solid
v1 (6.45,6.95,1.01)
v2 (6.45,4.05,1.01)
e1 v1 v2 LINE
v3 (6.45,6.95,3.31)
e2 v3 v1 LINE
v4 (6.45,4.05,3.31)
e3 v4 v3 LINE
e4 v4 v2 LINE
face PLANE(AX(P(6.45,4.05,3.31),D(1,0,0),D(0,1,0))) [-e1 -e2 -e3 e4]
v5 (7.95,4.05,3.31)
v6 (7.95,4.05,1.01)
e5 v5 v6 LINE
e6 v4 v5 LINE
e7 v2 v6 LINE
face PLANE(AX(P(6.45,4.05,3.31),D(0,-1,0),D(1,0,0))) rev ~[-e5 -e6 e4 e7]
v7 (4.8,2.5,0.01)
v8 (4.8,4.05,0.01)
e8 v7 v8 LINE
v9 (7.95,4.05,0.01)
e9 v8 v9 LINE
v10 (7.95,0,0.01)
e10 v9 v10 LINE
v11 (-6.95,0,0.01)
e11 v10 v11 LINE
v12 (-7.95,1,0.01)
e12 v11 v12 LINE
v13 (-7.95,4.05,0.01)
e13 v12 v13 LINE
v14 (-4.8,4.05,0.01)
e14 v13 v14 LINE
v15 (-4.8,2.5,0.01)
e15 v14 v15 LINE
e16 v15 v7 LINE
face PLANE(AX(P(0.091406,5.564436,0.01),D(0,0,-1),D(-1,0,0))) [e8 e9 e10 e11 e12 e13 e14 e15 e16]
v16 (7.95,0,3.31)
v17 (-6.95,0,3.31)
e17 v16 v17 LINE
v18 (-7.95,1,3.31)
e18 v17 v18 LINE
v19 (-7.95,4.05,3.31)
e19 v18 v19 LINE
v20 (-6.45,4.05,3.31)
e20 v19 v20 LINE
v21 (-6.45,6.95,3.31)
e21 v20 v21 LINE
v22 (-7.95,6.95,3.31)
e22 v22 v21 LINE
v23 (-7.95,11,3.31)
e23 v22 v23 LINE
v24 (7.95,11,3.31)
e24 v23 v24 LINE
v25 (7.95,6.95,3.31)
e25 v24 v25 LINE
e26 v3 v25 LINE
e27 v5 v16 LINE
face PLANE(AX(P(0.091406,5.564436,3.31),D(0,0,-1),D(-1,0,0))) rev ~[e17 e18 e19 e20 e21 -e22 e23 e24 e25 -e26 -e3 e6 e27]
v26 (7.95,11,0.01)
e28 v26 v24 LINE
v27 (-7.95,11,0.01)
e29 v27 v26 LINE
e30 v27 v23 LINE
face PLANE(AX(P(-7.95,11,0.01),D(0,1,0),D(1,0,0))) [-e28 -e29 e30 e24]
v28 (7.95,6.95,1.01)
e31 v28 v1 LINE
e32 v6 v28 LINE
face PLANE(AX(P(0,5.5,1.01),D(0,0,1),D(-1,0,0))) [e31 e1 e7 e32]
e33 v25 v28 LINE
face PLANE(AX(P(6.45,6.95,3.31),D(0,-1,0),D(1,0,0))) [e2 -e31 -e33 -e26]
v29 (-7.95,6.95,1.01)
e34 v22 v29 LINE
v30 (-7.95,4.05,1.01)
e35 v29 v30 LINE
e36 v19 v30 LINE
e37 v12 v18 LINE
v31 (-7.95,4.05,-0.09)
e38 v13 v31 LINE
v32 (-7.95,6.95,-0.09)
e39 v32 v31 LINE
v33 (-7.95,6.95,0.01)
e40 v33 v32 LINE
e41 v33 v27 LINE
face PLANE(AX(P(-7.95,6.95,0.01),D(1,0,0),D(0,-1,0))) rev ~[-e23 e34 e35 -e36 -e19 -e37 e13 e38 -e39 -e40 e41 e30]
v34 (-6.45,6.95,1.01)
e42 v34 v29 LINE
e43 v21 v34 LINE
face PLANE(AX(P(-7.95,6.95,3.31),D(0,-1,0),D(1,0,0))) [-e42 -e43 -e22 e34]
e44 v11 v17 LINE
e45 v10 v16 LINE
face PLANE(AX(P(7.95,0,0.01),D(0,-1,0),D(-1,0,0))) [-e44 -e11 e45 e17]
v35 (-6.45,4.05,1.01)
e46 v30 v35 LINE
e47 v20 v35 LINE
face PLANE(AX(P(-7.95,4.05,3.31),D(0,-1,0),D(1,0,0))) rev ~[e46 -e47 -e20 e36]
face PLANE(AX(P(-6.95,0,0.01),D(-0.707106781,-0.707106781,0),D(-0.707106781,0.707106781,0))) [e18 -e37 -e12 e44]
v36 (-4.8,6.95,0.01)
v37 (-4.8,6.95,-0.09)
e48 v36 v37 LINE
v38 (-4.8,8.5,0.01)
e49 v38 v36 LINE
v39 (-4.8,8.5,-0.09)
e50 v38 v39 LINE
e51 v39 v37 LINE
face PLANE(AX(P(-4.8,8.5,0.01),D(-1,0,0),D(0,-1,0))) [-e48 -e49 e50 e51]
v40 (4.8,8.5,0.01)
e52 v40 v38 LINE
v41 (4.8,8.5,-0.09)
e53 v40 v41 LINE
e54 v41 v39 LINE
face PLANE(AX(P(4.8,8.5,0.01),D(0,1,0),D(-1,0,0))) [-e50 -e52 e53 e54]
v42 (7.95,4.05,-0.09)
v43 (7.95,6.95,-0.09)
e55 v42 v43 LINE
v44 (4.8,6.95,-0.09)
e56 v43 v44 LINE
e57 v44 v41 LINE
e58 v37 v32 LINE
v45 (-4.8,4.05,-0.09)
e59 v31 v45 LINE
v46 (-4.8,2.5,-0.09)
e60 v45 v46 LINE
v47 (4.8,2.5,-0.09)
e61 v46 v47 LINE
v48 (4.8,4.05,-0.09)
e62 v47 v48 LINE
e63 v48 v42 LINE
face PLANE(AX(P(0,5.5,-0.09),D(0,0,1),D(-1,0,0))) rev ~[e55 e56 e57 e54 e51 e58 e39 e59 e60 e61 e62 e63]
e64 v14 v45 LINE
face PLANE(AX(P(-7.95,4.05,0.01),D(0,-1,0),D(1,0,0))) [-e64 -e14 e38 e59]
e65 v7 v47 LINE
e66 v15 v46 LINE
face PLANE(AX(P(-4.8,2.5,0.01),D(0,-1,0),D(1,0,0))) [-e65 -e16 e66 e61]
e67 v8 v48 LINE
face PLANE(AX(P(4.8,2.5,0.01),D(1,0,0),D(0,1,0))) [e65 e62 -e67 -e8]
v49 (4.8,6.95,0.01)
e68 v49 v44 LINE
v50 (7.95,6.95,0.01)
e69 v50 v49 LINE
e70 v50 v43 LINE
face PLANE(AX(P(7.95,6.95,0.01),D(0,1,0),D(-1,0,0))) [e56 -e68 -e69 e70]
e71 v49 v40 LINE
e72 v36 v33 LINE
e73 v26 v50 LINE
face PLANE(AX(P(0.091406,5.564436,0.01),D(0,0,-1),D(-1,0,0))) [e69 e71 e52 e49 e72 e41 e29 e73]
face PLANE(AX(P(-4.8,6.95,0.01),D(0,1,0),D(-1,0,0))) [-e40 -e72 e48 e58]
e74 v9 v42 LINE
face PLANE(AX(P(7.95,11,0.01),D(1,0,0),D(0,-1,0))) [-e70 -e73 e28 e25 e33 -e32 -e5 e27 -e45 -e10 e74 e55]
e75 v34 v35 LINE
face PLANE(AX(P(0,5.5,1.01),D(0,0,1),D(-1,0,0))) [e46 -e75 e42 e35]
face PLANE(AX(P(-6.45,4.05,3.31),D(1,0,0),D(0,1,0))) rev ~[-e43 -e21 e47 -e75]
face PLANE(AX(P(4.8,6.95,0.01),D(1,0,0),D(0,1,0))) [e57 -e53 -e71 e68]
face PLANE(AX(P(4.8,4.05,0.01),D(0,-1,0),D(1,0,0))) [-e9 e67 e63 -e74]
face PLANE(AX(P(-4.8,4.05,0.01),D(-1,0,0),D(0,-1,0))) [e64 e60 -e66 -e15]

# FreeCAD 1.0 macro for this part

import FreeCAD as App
import Part
import Sketcher

V = App.Vector
Q = App.Units.Quantity


def add_polygon(sketch, points):
    """Adds a closed chain of lines whose ends are joined by coincident constraints."""
    first, n = sketch.GeometryCount, len(points)
    for a, b in zip(points, points[1:] + points[:1]):
        sketch.addGeometry(Part.LineSegment(App.Vector(*a, 0), App.Vector(*b, 0)), False)
    for i in range(n):
        sketch.addConstraint(Sketcher.Constraint("Coincident", first + i, 2, first + (i + 1) % n, 1))

doc = App.newDocument("Part")
body = doc.addObject("PartDesign::Body", "Body")

sketch1 = body.newObject("Sketcher::SketchObject", "Sketch")
sketch1.AttachmentSupport = (doc.getObject("XY_Plane"), [""])
sketch1.MapMode = "FlatFace"
sketch1.AttachmentOffset = App.Placement(V(0, 0, 0.01), App.Rotation())
add_polygon(sketch1, [(8, 11), (-8, 11), (-8, 1), (-7, 0), (8, 0)])
sketch1.addConstraint([
    Sketcher.Constraint("Horizontal", 0),
    Sketcher.Constraint("Vertical", 1),
    Sketcher.Constraint("Horizontal", 3),
    Sketcher.Constraint("Vertical", 4),
    Sketcher.Constraint("PointOnObject", 2, 2, -1),
    Sketcher.Constraint("DistanceY", 1, 2, 1, 1, 10.0),
    Sketcher.Constraint("DistanceY", 4, 1, 4, 2, 11.0),
    Sketcher.Constraint("Angle", 2, Q("-45 deg")),
    Sketcher.Constraint("DistanceX", 0, 2, 0, 1, 15.9),
    Sketcher.Constraint("DistanceX", 0, 2, -1, 1, 7.95),
])
pad1 = body.newObject("PartDesign::Pad", "Pad")
pad1.Profile = sketch1
pad1.Length = 3.3

sketch2 = body.newObject("Sketcher::SketchObject", "Sketch001")
sketch2.AttachmentSupport = (doc.getObject("XY_Plane"), [""])
sketch2.MapMode = "FlatFace"
sketch2.AttachmentOffset = App.Placement(V(0, 0, 3.31), App.Rotation())
add_polygon(sketch2, [(-8, 7), (-8, 4), (-6.5, 4), (-6.5, 7)])
add_polygon(sketch2, [(6.5, 7), (6.5, 4), (8, 4), (8, 7)])
sketch2.addConstraint([
    Sketcher.Constraint("Vertical", 0),
    Sketcher.Constraint("Horizontal", 1),
    Sketcher.Constraint("Vertical", 2),
    Sketcher.Constraint("Horizontal", 3),
    Sketcher.Constraint("Vertical", 4),
    Sketcher.Constraint("Horizontal", 5),
    Sketcher.Constraint("Vertical", 6),
    Sketcher.Constraint("Horizontal", 7),
    Sketcher.Constraint("Symmetric", 1, 2, 4, 2, -2),
    Sketcher.Constraint("Symmetric", 3, 2, 6, 2, -2),
    Sketcher.Constraint("DistanceX", 1, 1, 1, 2, 1.5),
    Sketcher.Constraint("DistanceY", 0, 2, 0, 1, 2.9),
    Sketcher.Constraint("DistanceX", 1, 2, 4, 2, 12.9),
    Sketcher.Constraint("DistanceY", -1, 1, 0, 2, 4.05),
])
pocket1 = body.newObject("PartDesign::Pocket", "Pocket")
pocket1.Profile = sketch2
pocket1.Length = 5

sketch3 = body.newObject("Sketcher::SketchObject", "Sketch002")
sketch3.AttachmentSupport = (doc.getObject("XY_Plane"), [""])
sketch3.MapMode = "FlatFace"
sketch3.AttachmentOffset = App.Placement(V(0, 0, 0.01), App.Rotation())
add_polygon(sketch3, [(-8, 4), (-8, 7), (-4.8, 7), (-4.8, 8.5), (4.8, 8.5), (4.8, 7), (8, 7), (8, 4), (4.8, 4), (4.8, 2.5), (-4.8, 2.5), (-4.8, 4)])
sketch3.addConstraint([
    Sketcher.Constraint("Vertical", 0),
    Sketcher.Constraint("Horizontal", 1),
    Sketcher.Constraint("Vertical", 2),
    Sketcher.Constraint("Horizontal", 3),
    Sketcher.Constraint("Vertical", 4),
    Sketcher.Constraint("Horizontal", 5),
    Sketcher.Constraint("Vertical", 6),
    Sketcher.Constraint("Horizontal", 7),
    Sketcher.Constraint("Vertical", 8),
    Sketcher.Constraint("Horizontal", 9),
    Sketcher.Constraint("Vertical", 10),
    Sketcher.Constraint("Horizontal", 11),
    Sketcher.Constraint("Symmetric", 1, 2, 4, 2, -2),
    Sketcher.Constraint("Symmetric", 7, 2, 10, 2, -2),
    Sketcher.Constraint("Vertical", 4, 2, 7, 2),
    Sketcher.Constraint("Equal", 1, 5),
    Sketcher.Constraint("Equal", 4, 8),
    Sketcher.Constraint("DistanceX", 3, 1, 3, 2, 9.6),
    Sketcher.Constraint("DistanceY", 0, 1, 0, 2, 2.9),
    Sketcher.Constraint("DistanceY", 8, 2, 3, 2, 6.0),
    Sketcher.Constraint("DistanceX", 1, 1, 1, 2, 3.15),
    Sketcher.Constraint("DistanceY", -1, 1, 2, 2, 8.5),
])
pad2 = body.newObject("PartDesign::Pad", "Pad001")
pad2.Profile = sketch3
pad2.Type = "TwoLengths"
pad2.Length = 0.1
pad2.Length2 = 1
pad2.Reversed = True

doc.recompute()
